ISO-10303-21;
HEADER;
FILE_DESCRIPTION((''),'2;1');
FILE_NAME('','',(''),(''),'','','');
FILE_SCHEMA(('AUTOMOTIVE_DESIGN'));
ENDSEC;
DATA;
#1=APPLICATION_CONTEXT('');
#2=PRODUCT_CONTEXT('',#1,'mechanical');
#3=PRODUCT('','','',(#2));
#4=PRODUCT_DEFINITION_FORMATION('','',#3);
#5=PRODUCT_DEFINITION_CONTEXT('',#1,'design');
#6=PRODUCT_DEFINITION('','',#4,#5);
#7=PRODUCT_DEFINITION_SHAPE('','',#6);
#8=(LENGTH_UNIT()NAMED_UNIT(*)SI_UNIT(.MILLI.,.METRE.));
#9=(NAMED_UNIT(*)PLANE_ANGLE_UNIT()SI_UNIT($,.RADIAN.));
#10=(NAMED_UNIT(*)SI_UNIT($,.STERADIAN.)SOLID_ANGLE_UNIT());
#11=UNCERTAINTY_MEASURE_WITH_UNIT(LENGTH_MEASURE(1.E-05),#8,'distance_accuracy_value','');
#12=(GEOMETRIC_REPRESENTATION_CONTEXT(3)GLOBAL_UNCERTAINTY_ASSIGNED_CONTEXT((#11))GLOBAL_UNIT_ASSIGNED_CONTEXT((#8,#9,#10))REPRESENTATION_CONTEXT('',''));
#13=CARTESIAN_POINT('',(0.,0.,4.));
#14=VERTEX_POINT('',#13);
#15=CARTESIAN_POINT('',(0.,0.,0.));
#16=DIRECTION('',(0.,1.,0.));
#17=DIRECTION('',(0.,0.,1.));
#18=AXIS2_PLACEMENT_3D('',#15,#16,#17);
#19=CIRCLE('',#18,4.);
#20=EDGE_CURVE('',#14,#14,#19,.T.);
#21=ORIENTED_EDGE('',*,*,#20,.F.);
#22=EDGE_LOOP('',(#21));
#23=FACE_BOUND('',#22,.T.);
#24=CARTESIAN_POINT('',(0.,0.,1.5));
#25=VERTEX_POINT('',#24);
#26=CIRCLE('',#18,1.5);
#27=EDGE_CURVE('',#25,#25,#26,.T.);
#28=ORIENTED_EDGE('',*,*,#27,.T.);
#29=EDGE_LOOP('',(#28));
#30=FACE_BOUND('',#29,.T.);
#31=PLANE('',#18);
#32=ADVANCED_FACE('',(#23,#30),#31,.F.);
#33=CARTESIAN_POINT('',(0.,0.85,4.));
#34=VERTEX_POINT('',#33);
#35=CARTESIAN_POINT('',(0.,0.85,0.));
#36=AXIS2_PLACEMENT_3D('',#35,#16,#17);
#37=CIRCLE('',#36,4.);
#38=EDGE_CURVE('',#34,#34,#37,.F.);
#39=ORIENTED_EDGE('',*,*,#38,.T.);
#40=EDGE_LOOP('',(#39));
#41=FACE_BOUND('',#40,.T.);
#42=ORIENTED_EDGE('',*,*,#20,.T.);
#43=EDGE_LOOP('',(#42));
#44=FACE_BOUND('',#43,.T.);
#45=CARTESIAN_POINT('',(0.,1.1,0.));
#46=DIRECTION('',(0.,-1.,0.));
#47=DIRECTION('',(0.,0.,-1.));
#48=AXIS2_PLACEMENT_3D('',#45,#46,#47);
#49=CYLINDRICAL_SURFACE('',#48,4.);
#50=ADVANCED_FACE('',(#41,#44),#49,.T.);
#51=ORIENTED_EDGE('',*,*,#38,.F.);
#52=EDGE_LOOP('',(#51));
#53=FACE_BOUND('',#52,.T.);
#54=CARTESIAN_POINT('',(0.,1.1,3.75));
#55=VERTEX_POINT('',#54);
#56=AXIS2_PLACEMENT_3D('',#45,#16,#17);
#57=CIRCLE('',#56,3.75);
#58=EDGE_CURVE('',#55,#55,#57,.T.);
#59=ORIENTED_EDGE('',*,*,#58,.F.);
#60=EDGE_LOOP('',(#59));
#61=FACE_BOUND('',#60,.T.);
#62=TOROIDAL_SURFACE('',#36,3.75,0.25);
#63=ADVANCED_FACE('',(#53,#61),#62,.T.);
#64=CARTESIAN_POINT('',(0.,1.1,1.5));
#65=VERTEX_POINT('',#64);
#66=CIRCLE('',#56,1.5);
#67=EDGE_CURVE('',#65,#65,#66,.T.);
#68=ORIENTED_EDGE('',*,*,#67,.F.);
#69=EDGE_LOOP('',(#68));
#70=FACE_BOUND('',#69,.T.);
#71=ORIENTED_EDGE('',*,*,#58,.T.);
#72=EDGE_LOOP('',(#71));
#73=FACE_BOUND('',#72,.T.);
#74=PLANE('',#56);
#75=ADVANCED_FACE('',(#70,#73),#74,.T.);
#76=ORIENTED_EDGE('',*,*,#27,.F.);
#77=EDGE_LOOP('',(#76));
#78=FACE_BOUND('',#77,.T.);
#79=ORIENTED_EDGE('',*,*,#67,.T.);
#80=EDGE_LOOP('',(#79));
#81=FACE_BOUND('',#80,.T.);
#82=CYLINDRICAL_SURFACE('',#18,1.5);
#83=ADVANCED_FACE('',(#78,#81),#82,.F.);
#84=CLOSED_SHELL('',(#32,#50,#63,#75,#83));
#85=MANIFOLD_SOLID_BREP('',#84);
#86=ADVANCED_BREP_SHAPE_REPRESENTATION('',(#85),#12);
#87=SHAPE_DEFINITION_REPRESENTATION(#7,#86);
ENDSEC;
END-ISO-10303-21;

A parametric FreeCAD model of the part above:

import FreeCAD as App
import Part
import Sketcher

V = App.Vector
Q = App.Units.Quantity


def edges_at(feature, points):
    """Names of the edges that pass closest to the given points."""
    edges = feature.Shape.Edges
    near = lambda p: min(range(len(edges)), key=lambda i: edges[i].distToShape(Part.Vertex(*p))[0])
    return sorted({f"Edge{near(p) + 1}" for p in points})

doc = App.newDocument("Part")
params = doc.addObject("Spreadsheet::Sheet", "Params")
for row, (alias, value) in enumerate([
    ("sketch1_diameter", "8 mm"),
    ("pad1_length", "1.1 mm"),
    ("sketch2_diameter", "3 mm"),
    ("fillet_radius", "0.25 mm"),
], start=1):
    params.set(f"A{row}", alias)
    params.set(f"B{row}", "=" + value)
    params.setAlias(f"B{row}", alias)

body = doc.addObject("PartDesign::Body", "Body")

# Sketch on XZ plane
sketch1 = body.newObject("Sketcher::SketchObject", "Sketch")
sketch1.AttachmentSupport = (doc.getObject("XZ_Plane"), [""])
sketch1.MapMode = "FlatFace"
sketch1.addGeometry(Part.Circle(V(0, 0, 0), V(0, 0, 1), 4), False)
sketch1.addConstraint([
    Sketcher.Constraint("Coincident", 0, 3, -1, 1),
    Sketcher.Constraint("Diameter", 0, Q("8 mm")),
])
sketch1.setExpression("Constraints[1]", "Params.sketch1_diameter")
pad1 = body.newObject("PartDesign::Pad", "Pad")
pad1.Profile = sketch1
pad1.setExpression("Length", "Params.pad1_length")
pad1.Reversed = True

# Sketch on XZ plane
sketch2 = body.newObject("Sketcher::SketchObject", "Sketch001")
sketch2.AttachmentSupport = (doc.getObject("XZ_Plane"), [""])
sketch2.MapMode = "FlatFace"
sketch2.AttachmentOffset = App.Placement(V(0, 0, -1.1), App.Rotation())
sketch2.addGeometry(Part.Circle(V(0, 0, 0), V(0, 0, 1), 1.5), False)
sketch2.addConstraint([
    Sketcher.Constraint("Coincident", 0, 3, -1, 1),
    Sketcher.Constraint("Diameter", 0, Q("3 mm")),
])
sketch2.setExpression("Constraints[1]", "Params.sketch2_diameter")
pocket1 = body.newObject("PartDesign::Pocket", "Pocket")
pocket1.Profile = sketch2
pocket1.Type = "ThroughAll"
pocket1.Reversed = True
doc.recompute()

fillet = body.newObject("PartDesign::Fillet", "Fillet")
fillet.Base = (pocket1, edges_at(pocket1, [(0, 1.1, -4)]))
fillet.setExpression("Radius", "Params.fillet_radius")

doc.recompute()
